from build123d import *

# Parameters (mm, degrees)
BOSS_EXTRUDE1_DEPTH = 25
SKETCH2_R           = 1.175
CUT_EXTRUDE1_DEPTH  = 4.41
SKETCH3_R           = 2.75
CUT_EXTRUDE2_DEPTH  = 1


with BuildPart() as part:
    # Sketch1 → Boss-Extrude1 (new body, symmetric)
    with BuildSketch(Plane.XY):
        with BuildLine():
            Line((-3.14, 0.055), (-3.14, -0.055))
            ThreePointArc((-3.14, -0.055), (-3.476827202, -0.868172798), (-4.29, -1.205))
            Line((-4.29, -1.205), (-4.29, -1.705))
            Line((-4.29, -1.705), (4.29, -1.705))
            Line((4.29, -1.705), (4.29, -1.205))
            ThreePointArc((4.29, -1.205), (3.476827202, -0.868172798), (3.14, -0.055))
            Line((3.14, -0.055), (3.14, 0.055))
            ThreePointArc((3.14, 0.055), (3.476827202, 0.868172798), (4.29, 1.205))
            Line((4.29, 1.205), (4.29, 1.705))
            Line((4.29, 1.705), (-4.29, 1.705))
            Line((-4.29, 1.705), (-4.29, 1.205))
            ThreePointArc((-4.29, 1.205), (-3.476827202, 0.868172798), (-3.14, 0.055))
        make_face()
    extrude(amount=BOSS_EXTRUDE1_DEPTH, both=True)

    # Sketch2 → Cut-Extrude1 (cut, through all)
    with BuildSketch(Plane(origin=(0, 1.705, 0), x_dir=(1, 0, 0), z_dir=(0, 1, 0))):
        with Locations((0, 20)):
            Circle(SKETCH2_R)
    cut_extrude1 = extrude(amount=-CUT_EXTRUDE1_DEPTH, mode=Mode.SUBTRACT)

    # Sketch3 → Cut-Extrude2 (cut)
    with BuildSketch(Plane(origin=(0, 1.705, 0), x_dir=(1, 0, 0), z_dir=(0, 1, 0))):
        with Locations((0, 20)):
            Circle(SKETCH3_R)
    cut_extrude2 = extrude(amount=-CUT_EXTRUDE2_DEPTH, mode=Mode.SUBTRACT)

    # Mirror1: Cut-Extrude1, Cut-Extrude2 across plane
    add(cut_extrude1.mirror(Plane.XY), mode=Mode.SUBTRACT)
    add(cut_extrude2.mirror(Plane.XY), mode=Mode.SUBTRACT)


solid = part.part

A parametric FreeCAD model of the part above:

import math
import FreeCAD as App
import Part
import Sketcher
from FreeCAD import Vector

doc = App.newDocument("Part")
params = doc.addObject("Spreadsheet::Sheet", "Params")
for row, (alias, value) in enumerate([
    ("sketch1_radius", "1.15 mm"),
    ("sketch1_height", "0.5 mm"),
    ("sketch1_width", "8.58 mm"),
    ("sketch1_height2", "0.11 mm"),
    ("pad1_length", "50 mm"),
    ("sketch2_diameter", "2.35 mm"),
    ("sketch3_diameter", "5.5 mm"),
    ("pocket2_length", "1 mm"),
], start=1):
    params.set(f"A{row}", alias)
    params.set(f"B{row}", "=" + value)
    params.setAlias(f"B{row}", alias)

body = doc.addObject("PartDesign::Body", "Body")

# Sketch on XY plane
sketch1 = body.newObject("Sketcher::SketchObject", "Sketch")
sketch1.AttachmentSupport = (doc.getObject("XY_Plane"), [""])
sketch1.MapMode = "FlatFace"
sketch1.addGeometry(Part.LineSegment(Vector(-3.14, 0.055, 0), Vector(-3.14, -0.055, 0)), False)
sketch1.addGeometry(Part.ArcOfCircle(Part.Circle(Vector(-4.29, -0.055, 0), Vector(0, 0, 1), 1.15), math.radians(-90), math.radians(0)), False)
sketch1.addGeometry(Part.LineSegment(Vector(-4.29, -1.205, 0), Vector(-4.29, -1.705, 0)), False)
sketch1.addGeometry(Part.LineSegment(Vector(-4.29, -1.705, 0), Vector(4.29, -1.705, 0)), False)
sketch1.addGeometry(Part.LineSegment(Vector(4.29, -1.705, 0), Vector(4.29, -1.205, 0)), False)
sketch1.addGeometry(Part.ArcOfCircle(Part.Circle(Vector(4.29, -0.055, 0), Vector(0, 0, 1), 1.15), math.radians(-180), math.radians(-90)), False)
sketch1.addGeometry(Part.LineSegment(Vector(3.14, -0.055, 0), Vector(3.14, 0.055, 0)), False)
sketch1.addGeometry(Part.ArcOfCircle(Part.Circle(Vector(4.29, 0.055, 0), Vector(0, 0, 1), 1.15), math.radians(90), math.radians(180)), False)
sketch1.addGeometry(Part.LineSegment(Vector(4.29, 1.205, 0), Vector(4.29, 1.705, 0)), False)
sketch1.addGeometry(Part.LineSegment(Vector(4.29, 1.705, 0), Vector(-4.29, 1.705, 0)), False)
sketch1.addGeometry(Part.LineSegment(Vector(-4.29, 1.705, 0), Vector(-4.29, 1.205, 0)), False)
sketch1.addGeometry(Part.ArcOfCircle(Part.Circle(Vector(-4.29, 0.055, 0), Vector(0, 0, 1), 1.15), math.radians(0), math.radians(90)), False)
sketch1.addConstraint(Sketcher.Constraint("Tangent", 0, 2, 1, 2))
sketch1.addConstraint(Sketcher.Constraint("Coincident", 1, 1, 2, 1))
sketch1.addConstraint(Sketcher.Constraint("Coincident", 2, 2, 3, 1))
sketch1.addConstraint(Sketcher.Constraint("Coincident", 3, 2, 4, 1))
sketch1.addConstraint(Sketcher.Constraint("Coincident", 4, 2, 5, 2))
sketch1.addConstraint(Sketcher.Constraint("Tangent", 5, 1, 6, 1))
sketch1.addConstraint(Sketcher.Constraint("Tangent", 6, 2, 7, 2))
sketch1.addConstraint(Sketcher.Constraint("Coincident", 7, 1, 8, 1))
sketch1.addConstraint(Sketcher.Constraint("Coincident", 8, 2, 9, 1))
sketch1.addConstraint(Sketcher.Constraint("Coincident", 9, 2, 10, 1))
sketch1.addConstraint(Sketcher.Constraint("Coincident", 10, 2, 11, 2))
sketch1.addConstraint(Sketcher.Constraint("Tangent", 11, 1, 0, 1))
sketch1.addConstraint(Sketcher.Constraint("Vertical", 0))
sketch1.addConstraint(Sketcher.Constraint("Vertical", 2))
sketch1.addConstraint(Sketcher.Constraint("Horizontal", 3))
sketch1.addConstraint(Sketcher.Constraint("Vertical", 4))
sketch1.addConstraint(Sketcher.Constraint("Vertical", 6))
sketch1.addConstraint(Sketcher.Constraint("Vertical", 8))
sketch1.addConstraint(Sketcher.Constraint("Horizontal", 9))
sketch1.addConstraint(Sketcher.Constraint("Vertical", 10))
sketch1.addConstraint(Sketcher.Constraint("Equal", 1, 5))
sketch1.addConstraint(Sketcher.Constraint("Equal", 5, 7))
sketch1.addConstraint(Sketcher.Constraint("Equal", 7, 11))
sketch1.addConstraint(Sketcher.Constraint("Symmetric", 1, 3, 7, 3, -1, 1))
sketch1.addConstraint(Sketcher.Constraint("Symmetric", 2, 2, 8, 2, -1, 1))
sketch1.addConstraint(Sketcher.Constraint("Symmetric", 4, 2, 10, 2, -1, 1))
sketch1.addConstraint(Sketcher.Constraint("Symmetric", 1, 1, 4, 2, -2))
sketch1.addConstraint(Sketcher.Constraint("Vertical", 11, 3, 1, 1))
sketch1.addConstraint(Sketcher.Constraint("Radius", 1, 1.15))
sketch1.addConstraint(Sketcher.Constraint("DistanceY", 2, 2, 2, 1, 0.5))
sketch1.addConstraint(Sketcher.Constraint("DistanceX", 3, 1, 3, 2, 8.58))
sketch1.addConstraint(Sketcher.Constraint("DistanceY", 0, 2, 0, 1, 0.11))
sketch1.setExpression("Constraints[28]", "Params.sketch1_radius")
sketch1.setExpression("Constraints[29]", "Params.sketch1_height")
sketch1.setExpression("Constraints[30]", "Params.sketch1_width")
sketch1.setExpression("Constraints[31]", "Params.sketch1_height2")
pad1 = body.newObject("PartDesign::Pad", "Pad")
pad1.Profile = sketch1
pad1.setExpression("Length", "Params.pad1_length")
pad1.Midplane = True

# Sketch on XZ plane
sketch2 = body.newObject("Sketcher::SketchObject", "Sketch001")
sketch2.AttachmentSupport = (doc.getObject("XZ_Plane"), [""])
sketch2.MapMode = "FlatFace"
sketch2.AttachmentOffset = App.Placement(Vector(0, 0, -1.705), App.Rotation())
sketch2.addGeometry(Part.Circle(Vector(0, -20, 0), Vector(0, 0, 1), 1.175), False)
sketch2.addConstraint(Sketcher.Constraint("PointOnObject", 0, 3, -2))
sketch2.addConstraint(Sketcher.Constraint("Diameter", 0, 2.35))
sketch2.addConstraint(Sketcher.Constraint("DistanceY", 0, 3, -1, 1, 20.0))
sketch2.setExpression("Constraints[1]", "Params.sketch2_diameter")
pocket1 = body.newObject("PartDesign::Pocket", "Pocket")
pocket1.Profile = sketch2
pocket1.Type = "ThroughAll"
pocket1.Reversed = True

# Sketch on XZ plane
sketch3 = body.newObject("Sketcher::SketchObject", "Sketch002")
sketch3.AttachmentSupport = (doc.getObject("XZ_Plane"), [""])
sketch3.MapMode = "FlatFace"
sketch3.AttachmentOffset = App.Placement(Vector(0, 0, -1.705), App.Rotation())
sketch3.addGeometry(Part.Circle(Vector(0, -20, 0), Vector(0, 0, 1), 2.75), False)
sketch3.addConstraint(Sketcher.Constraint("PointOnObject", 0, 3, -2))
sketch3.addConstraint(Sketcher.Constraint("Diameter", 0, 5.5))
sketch3.addConstraint(Sketcher.Constraint("DistanceY", 0, 3, -1, 1, 20.0))
sketch3.setExpression("Constraints[1]", "Params.sketch3_diameter")
pocket2 = body.newObject("PartDesign::Pocket", "Pocket001")
pocket2.Profile = sketch3
pocket2.setExpression("Length", "Params.pocket2_length")
pocket2.Reversed = True
doc.recompute()

mirrored = body.newObject("PartDesign::Mirrored", "Mirrored")
mirrored.Originals = [pocket1, pocket2]
mirrored.MirrorPlane = (doc.getObject("XY_Plane"), [""])
body.Tip = mirrored

doc.recompute()
